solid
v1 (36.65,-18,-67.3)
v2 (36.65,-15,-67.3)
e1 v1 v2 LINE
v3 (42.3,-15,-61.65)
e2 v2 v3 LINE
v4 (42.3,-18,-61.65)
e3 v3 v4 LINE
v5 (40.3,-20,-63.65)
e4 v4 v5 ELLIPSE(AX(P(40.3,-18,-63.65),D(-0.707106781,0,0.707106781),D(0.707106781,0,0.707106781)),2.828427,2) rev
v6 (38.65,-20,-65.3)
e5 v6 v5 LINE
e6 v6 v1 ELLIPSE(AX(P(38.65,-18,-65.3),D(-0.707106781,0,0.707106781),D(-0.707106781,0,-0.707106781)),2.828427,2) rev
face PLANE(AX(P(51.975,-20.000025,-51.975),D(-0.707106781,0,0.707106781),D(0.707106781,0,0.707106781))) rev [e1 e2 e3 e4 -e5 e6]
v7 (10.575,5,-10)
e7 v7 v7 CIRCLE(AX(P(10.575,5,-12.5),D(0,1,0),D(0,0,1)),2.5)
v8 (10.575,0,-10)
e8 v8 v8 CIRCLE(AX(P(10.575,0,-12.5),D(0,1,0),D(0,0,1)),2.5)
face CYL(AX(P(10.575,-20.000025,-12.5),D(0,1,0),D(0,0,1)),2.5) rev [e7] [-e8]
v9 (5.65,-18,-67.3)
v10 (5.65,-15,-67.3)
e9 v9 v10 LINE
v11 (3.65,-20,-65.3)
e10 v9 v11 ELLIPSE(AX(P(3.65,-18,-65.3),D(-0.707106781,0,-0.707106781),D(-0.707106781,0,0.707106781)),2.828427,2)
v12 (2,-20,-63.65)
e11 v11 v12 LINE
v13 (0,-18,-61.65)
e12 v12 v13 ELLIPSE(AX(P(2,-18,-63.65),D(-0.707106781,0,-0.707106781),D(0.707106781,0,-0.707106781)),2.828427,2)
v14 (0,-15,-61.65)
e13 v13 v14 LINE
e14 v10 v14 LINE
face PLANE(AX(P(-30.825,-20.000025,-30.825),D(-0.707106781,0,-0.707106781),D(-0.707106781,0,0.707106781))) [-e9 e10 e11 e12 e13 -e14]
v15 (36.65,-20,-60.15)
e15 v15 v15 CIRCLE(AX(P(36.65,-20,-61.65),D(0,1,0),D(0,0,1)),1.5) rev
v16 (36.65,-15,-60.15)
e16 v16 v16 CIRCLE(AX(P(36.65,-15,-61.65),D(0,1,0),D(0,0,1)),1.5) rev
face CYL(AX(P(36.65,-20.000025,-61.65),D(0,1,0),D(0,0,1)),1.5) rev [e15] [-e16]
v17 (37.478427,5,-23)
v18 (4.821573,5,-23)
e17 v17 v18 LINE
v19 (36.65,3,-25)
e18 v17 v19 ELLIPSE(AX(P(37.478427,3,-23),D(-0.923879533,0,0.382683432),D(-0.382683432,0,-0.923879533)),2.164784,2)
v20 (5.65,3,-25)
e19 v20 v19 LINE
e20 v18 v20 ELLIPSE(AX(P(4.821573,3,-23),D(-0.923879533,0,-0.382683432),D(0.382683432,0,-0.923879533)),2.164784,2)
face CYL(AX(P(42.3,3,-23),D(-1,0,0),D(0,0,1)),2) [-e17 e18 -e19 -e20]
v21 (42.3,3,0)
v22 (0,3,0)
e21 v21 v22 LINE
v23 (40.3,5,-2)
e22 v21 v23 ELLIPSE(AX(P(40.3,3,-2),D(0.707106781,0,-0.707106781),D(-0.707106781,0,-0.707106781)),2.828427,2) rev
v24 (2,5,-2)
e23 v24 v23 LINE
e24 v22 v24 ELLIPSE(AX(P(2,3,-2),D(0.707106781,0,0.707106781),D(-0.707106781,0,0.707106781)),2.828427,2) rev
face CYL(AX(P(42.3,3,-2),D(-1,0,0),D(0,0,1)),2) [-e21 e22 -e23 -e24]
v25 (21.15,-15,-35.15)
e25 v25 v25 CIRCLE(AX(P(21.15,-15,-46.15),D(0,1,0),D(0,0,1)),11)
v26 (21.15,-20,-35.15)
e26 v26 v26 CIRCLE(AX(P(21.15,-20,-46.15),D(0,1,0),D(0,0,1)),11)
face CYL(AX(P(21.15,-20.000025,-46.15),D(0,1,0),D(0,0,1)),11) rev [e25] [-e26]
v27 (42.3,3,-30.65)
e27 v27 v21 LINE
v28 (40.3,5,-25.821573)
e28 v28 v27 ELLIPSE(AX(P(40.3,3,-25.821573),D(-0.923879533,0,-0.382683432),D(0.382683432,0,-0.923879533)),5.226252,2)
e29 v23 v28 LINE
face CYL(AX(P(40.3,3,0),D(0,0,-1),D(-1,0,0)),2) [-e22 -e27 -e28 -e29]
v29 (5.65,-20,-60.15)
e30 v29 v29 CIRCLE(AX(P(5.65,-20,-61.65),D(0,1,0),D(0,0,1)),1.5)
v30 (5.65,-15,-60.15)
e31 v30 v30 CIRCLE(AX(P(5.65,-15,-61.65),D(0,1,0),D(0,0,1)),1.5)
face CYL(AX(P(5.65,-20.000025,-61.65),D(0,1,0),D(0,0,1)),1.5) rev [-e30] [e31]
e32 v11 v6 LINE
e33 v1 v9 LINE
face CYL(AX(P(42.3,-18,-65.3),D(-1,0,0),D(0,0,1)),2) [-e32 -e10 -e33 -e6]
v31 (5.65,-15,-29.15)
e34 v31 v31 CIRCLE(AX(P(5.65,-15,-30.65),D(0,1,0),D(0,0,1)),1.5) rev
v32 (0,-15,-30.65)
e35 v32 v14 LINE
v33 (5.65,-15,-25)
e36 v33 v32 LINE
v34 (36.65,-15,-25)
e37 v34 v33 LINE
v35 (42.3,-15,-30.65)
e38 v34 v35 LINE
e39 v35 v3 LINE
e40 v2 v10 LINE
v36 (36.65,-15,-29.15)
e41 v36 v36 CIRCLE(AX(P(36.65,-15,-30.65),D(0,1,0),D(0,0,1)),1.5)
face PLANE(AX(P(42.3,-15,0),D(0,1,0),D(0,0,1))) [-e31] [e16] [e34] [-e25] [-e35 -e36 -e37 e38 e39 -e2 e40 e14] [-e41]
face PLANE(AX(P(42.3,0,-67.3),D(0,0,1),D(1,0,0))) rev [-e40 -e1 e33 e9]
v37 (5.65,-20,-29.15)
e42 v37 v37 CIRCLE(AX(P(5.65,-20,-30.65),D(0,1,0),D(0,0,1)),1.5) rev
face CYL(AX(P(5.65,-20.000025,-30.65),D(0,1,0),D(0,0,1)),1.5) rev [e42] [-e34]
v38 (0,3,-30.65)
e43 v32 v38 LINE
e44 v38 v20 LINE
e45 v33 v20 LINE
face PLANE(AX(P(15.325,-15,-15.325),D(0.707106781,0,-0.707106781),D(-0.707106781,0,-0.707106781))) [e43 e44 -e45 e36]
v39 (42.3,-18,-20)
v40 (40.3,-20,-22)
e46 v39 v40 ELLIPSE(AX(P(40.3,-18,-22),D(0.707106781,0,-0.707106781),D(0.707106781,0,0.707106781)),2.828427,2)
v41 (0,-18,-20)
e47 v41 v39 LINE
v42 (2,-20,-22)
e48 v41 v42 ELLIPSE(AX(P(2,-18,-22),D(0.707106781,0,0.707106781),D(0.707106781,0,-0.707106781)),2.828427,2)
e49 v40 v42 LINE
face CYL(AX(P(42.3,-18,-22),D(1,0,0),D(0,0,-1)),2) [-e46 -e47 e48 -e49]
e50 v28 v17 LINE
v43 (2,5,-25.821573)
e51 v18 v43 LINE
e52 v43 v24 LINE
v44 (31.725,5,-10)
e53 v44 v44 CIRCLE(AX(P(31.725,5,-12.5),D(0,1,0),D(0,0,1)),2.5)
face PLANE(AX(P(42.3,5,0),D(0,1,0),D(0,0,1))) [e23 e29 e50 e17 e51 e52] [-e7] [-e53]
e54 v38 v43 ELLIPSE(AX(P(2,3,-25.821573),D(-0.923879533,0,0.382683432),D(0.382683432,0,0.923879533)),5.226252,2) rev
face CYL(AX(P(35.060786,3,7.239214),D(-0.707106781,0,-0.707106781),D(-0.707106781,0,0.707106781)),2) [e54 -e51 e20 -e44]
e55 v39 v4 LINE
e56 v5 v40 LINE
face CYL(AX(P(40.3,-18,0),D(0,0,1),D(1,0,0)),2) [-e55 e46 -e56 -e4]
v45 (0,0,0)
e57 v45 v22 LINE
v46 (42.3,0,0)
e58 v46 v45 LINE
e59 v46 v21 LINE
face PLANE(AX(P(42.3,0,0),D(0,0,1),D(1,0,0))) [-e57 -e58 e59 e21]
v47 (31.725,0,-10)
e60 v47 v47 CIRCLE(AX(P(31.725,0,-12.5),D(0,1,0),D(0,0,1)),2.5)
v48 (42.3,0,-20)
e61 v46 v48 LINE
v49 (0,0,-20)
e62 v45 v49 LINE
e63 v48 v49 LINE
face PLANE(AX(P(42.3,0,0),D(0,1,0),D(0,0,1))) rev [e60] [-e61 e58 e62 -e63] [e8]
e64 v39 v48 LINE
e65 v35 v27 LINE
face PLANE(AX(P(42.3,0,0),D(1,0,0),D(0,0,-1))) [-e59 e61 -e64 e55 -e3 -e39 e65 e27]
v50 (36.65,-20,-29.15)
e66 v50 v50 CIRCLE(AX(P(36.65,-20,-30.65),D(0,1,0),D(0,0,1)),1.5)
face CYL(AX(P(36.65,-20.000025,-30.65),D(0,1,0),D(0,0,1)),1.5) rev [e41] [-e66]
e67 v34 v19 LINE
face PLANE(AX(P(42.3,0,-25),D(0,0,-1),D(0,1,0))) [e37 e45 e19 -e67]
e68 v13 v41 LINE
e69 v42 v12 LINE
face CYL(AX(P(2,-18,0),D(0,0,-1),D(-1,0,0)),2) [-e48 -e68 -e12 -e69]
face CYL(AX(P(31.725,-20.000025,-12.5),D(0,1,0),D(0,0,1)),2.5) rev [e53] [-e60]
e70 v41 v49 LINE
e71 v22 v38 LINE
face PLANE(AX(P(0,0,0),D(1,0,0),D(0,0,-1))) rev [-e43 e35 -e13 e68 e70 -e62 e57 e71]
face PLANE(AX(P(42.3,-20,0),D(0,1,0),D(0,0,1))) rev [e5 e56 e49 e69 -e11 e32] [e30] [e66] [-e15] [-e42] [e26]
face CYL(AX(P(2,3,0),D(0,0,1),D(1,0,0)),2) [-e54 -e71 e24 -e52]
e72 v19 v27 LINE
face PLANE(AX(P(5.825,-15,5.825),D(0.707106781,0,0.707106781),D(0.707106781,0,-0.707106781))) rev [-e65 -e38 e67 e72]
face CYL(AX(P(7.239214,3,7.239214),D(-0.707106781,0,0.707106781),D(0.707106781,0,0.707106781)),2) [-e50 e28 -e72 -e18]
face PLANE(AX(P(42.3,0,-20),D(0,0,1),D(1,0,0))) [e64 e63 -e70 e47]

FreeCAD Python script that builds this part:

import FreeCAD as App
import Part
import Sketcher
from FreeCAD import Vector


def edges_at(feature, points):
    """Names of the edges that pass closest to the given points."""
    edges = feature.Shape.Edges
    near = lambda p: min(range(len(edges)), key=lambda i: edges[i].distToShape(Part.Vertex(*p))[0])
    return sorted({f"Edge{near(p) + 1}" for p in points})

doc = App.newDocument("Part")
params = doc.addObject("Spreadsheet::Sheet", "Params")
for row, (alias, value) in enumerate([
    ("sketch1_width", "5 mm"),
    ("sketch1_width2", "20 mm"),
    ("sketch1_height", "25 mm"),
    ("sketch1_height2", "47.3 mm"),
    ("pad1_length", "42.3 mm"),
    ("sketch2_diameter", "22 mm"),
    ("sketch2_diameter2", "3 mm"),
    ("sketch2_diameter3", "5 mm"),
    ("sketch2_width", "5.65 mm"),
    ("sketch3_width", "5.65 mm"),
    ("pad2_length", "20 mm"),
    ("fillet_radius", "2 mm"),
], start=1):
    params.set(f"A{row}", alias)
    params.set(f"B{row}", "=" + value)
    params.setAlias(f"B{row}", alias)

body = doc.addObject("PartDesign::Body", "Body")

sketch1 = doc.addObject("Sketcher::SketchObject", "Sketch")
body.addObject(sketch1)
sketch1.AttachmentSupport = (doc.YZ_Plane, [""])
sketch1.MapMode = "FlatFace"
sketch1.addGeometry(Part.LineSegment(Vector(5, 0, 0), Vector(0, 0, 0)), False)
sketch1.addGeometry(Part.LineSegment(Vector(0, 0, 0), Vector(0, -20, 0)), False)
sketch1.addGeometry(Part.LineSegment(Vector(0, -20, 0), Vector(-20, -20, 0)), False)
sketch1.addGeometry(Part.LineSegment(Vector(-20, -20, 0), Vector(-20, -67, 0)), False)
sketch1.addGeometry(Part.LineSegment(Vector(-20, -67, 0), Vector(-15, -67, 0)), False)
sketch1.addGeometry(Part.LineSegment(Vector(-15, -67, 0), Vector(-15, -25, 0)), False)
sketch1.addGeometry(Part.LineSegment(Vector(-15, -25, 0), Vector(5, -25, 0)), False)
sketch1.addGeometry(Part.LineSegment(Vector(5, -25, 0), Vector(5, 0, 0)), False)
sketch1.addConstraint(Sketcher.Constraint("Coincident", 0, 2, 1, 1))
sketch1.addConstraint(Sketcher.Constraint("Coincident", 1, 2, 2, 1))
sketch1.addConstraint(Sketcher.Constraint("Coincident", 2, 2, 3, 1))
sketch1.addConstraint(Sketcher.Constraint("Coincident", 3, 2, 4, 1))
sketch1.addConstraint(Sketcher.Constraint("Coincident", 4, 2, 5, 1))
sketch1.addConstraint(Sketcher.Constraint("Coincident", 5, 2, 6, 1))
sketch1.addConstraint(Sketcher.Constraint("Coincident", 6, 2, 7, 1))
sketch1.addConstraint(Sketcher.Constraint("Coincident", 7, 2, 0, 1))
sketch1.addConstraint(Sketcher.Constraint("Horizontal", 0))
sketch1.addConstraint(Sketcher.Constraint("Vertical", 1))
sketch1.addConstraint(Sketcher.Constraint("Horizontal", 2))
sketch1.addConstraint(Sketcher.Constraint("Vertical", 3))
sketch1.addConstraint(Sketcher.Constraint("Horizontal", 4))
sketch1.addConstraint(Sketcher.Constraint("Vertical", 5))
sketch1.addConstraint(Sketcher.Constraint("Horizontal", 6))
sketch1.addConstraint(Sketcher.Constraint("Vertical", 7))
sketch1.addConstraint(Sketcher.Constraint("Coincident", 0, 2, -1, 1))
sketch1.addConstraint(Sketcher.Constraint("Equal", 0, 4))
sketch1.addConstraint(Sketcher.Constraint("Equal", 6, 1))
sketch1.addConstraint(Sketcher.Constraint("DistanceX", 0, 2, 0, 1, 5.0))
sketch1.addConstraint(Sketcher.Constraint("DistanceX", 2, 2, 2, 1, 20.0))
sketch1.addConstraint(Sketcher.Constraint("DistanceY", 7, 1, 7, 2, 25.0))
sketch1.addConstraint(Sketcher.Constraint("DistanceY", 3, 2, 3, 1, 47.3))
sketch1.setExpression("Constraints[19]", "Params.sketch1_width")
sketch1.setExpression("Constraints[20]", "Params.sketch1_width2")
sketch1.setExpression("Constraints[21]", "Params.sketch1_height")
sketch1.setExpression("Constraints[22]", "Params.sketch1_height2")
pad1 = doc.addObject("PartDesign::Pad", "Pad")
body.addObject(pad1)
pad1.Profile = sketch1
pad1.setExpression("Length", "Params.pad1_length")

sketch2 = doc.addObject("Sketcher::SketchObject", "Sketch001")
body.addObject(sketch2)
sketch2.AttachmentSupport = (doc.XZ_Plane, [""])
sketch2.MapMode = "FlatFace"
sketch2.AttachmentOffset = App.Placement(Vector(0, 0, -5), App.Rotation())
sketch2.addGeometry(Part.LineSegment(Vector(0, -61.6, 0), Vector(5.7, -67.3, 0)), False)
sketch2.addGeometry(Part.LineSegment(Vector(5.7, -67.3, 0), Vector(0, -67.3, 0)), False)
sketch2.addGeometry(Part.LineSegment(Vector(0, -67.3, 0), Vector(0, -61.6, 0)), False)
sketch2.addGeometry(Part.LineSegment(Vector(42.3, -67.3, 0), Vector(36.6, -67.3, 0)), False)
sketch2.addGeometry(Part.LineSegment(Vector(36.6, -67.3, 0), Vector(42.3, -61.6, 0)), False)
sketch2.addGeometry(Part.LineSegment(Vector(42.3, -61.6, 0), Vector(42.3, -67.3, 0)), False)
sketch2.addGeometry(Part.Circle(Vector(21.1, -46.1, 0), Vector(0, 0, 1), 11), False)
sketch2.addGeometry(Part.Circle(Vector(5.7, -61.6, 0), Vector(0, 0, 1), 1.5), False)
sketch2.addGeometry(Part.Circle(Vector(36.6, -61.6, 0), Vector(0, 0, 1), 1.5), False)
sketch2.addGeometry(Part.Circle(Vector(5.7, -30.6, 0), Vector(0, 0, 1), 1.5), False)
sketch2.addGeometry(Part.Circle(Vector(36.6, -30.6, 0), Vector(0, 0, 1), 1.5), False)
sketch2.addGeometry(Part.Circle(Vector(10.6, -12.5, 0), Vector(0, 0, 1), 2.5), False)
sketch2.addGeometry(Part.Circle(Vector(31.7, -12.5, 0), Vector(0, 0, 1), 2.5), False)
sketch2.addConstraint(Sketcher.Constraint("Coincident", 0, 2, 1, 1))
sketch2.addConstraint(Sketcher.Constraint("Coincident", 1, 2, 2, 1))
sketch2.addConstraint(Sketcher.Constraint("Coincident", 2, 2, 0, 1))
sketch2.addConstraint(Sketcher.Constraint("Coincident", 3, 2, 4, 1))
sketch2.addConstraint(Sketcher.Constraint("Coincident", 4, 2, 5, 1))
sketch2.addConstraint(Sketcher.Constraint("Coincident", 5, 2, 3, 1))
sketch2.addConstraint(Sketcher.Constraint("Horizontal", 1))
sketch2.addConstraint(Sketcher.Constraint("Vertical", 2))
sketch2.addConstraint(Sketcher.Constraint("Horizontal", 3))
sketch2.addConstraint(Sketcher.Constraint("Vertical", 5))
sketch2.addConstraint(Sketcher.Constraint("Equal", 7, 8))
sketch2.addConstraint(Sketcher.Constraint("Equal", 8, 9))
sketch2.addConstraint(Sketcher.Constraint("Equal", 9, 10))
sketch2.addConstraint(Sketcher.Constraint("Equal", 11, 12))
sketch2.addConstraint(Sketcher.Constraint("PointOnObject", 1, 2, -2))
sketch2.addConstraint(Sketcher.Constraint("Perpendicular", 0, 4))
sketch2.addConstraint(Sketcher.Constraint("Horizontal", 7, 3, 8, 3))
sketch2.addConstraint(Sketcher.Constraint("Horizontal", 9, 3, 10, 3))
sketch2.addConstraint(Sketcher.Constraint("Horizontal", 11, 3, 12, 3))
sketch2.addConstraint(Sketcher.Constraint("Horizontal", 8, 3, 2, 2))
sketch2.addConstraint(Sketcher.Constraint("Horizontal", 1, 2, 3, 2))
sketch2.addConstraint(Sketcher.Constraint("Horizontal", 2, 2, 4, 2))
sketch2.addConstraint(Sketcher.Constraint("Vertical", 7, 3, 9, 3))
sketch2.addConstraint(Sketcher.Constraint("Vertical", 8, 3, 10, 3))
sketch2.addConstraint(Sketcher.Constraint("Vertical", 9, 3, 0, 2))
sketch2.addConstraint(Sketcher.Constraint("Vertical", 10, 3, 3, 2))
sketch2.addConstraint(Sketcher.Constraint("Equal", 1, 3))
sketch2.addConstraint(Sketcher.Constraint("Diameter", 6, 22.0))
sketch2.addConstraint(Sketcher.Constraint("Diameter", 7, 3.0))
sketch2.addConstraint(Sketcher.Constraint("Diameter", 11, 5.0))
sketch2.addConstraint(Sketcher.Constraint("DistanceX", 7, 3, 8, 3, 31.0))
sketch2.addConstraint(Sketcher.Constraint("DistanceY", 7, 3, 9, 3, 31.0))
sketch2.addConstraint(Sketcher.Constraint("DistanceX", 1, 2, 1, 1, 5.65))
sketch2.addConstraint(Sketcher.Constraint("DistanceY", 11, 3, -1, 1, 12.5))
sketch2.addConstraint(Sketcher.Constraint("DistanceY", 0, 2, -1, 1, 67.3))
sketch2.addConstraint(Sketcher.Constraint("DistanceX", 7, 3, 6, 3, 15.5))
sketch2.addConstraint(Sketcher.Constraint("DistanceY", 7, 3, 6, 3, 15.5))
sketch2.addConstraint(Sketcher.Constraint("DistanceX", 11, 3, 12, 3, 21.15))
sketch2.addConstraint(Sketcher.Constraint("DistanceX", -1, 1, 11, 3, 10.575))
sketch2.setExpression("Constraints[27]", "Params.sketch2_diameter")
sketch2.setExpression("Constraints[28]", "Params.sketch2_diameter2")
sketch2.setExpression("Constraints[29]", "Params.sketch2_diameter3")
sketch2.setExpression("Constraints[32]", "Params.sketch2_width")
pocket1 = doc.addObject("PartDesign::Pocket", "Pocket")
body.addObject(pocket1)
pocket1.Profile = sketch2
pocket1.Type = "ThroughAll"
pocket1.Reversed = True

sketch3 = doc.addObject("Sketcher::SketchObject", "Sketch002")
body.addObject(sketch3)
sketch3.AttachmentSupport = (doc.XZ_Plane, [""])
sketch3.MapMode = "FlatFace"
sketch3.AttachmentOffset = App.Placement(Vector(0, 0, -5), App.Rotation())
sketch3.addGeometry(Part.LineSegment(Vector(6, -25, 0), Vector(0, -31, 0)), False)
sketch3.addGeometry(Part.LineSegment(Vector(0, -31, 0), Vector(0, -25, 0)), False)
sketch3.addGeometry(Part.LineSegment(Vector(0, -25, 0), Vector(6, -25, 0)), False)
sketch3.addGeometry(Part.LineSegment(Vector(42, -25, 0), Vector(42, -31, 0)), False)
sketch3.addGeometry(Part.LineSegment(Vector(42, -31, 0), Vector(37, -25, 0)), False)
sketch3.addGeometry(Part.LineSegment(Vector(37, -25, 0), Vector(42, -25, 0)), False)
sketch3.addConstraint(Sketcher.Constraint("Coincident", 0, 2, 1, 1))
sketch3.addConstraint(Sketcher.Constraint("Coincident", 1, 2, 2, 1))
sketch3.addConstraint(Sketcher.Constraint("Coincident", 2, 2, 0, 1))
sketch3.addConstraint(Sketcher.Constraint("Coincident", 3, 2, 4, 1))
sketch3.addConstraint(Sketcher.Constraint("Coincident", 4, 2, 5, 1))
sketch3.addConstraint(Sketcher.Constraint("Coincident", 5, 2, 3, 1))
sketch3.addConstraint(Sketcher.Constraint("Vertical", 1))
sketch3.addConstraint(Sketcher.Constraint("Horizontal", 2))
sketch3.addConstraint(Sketcher.Constraint("Vertical", 3))
sketch3.addConstraint(Sketcher.Constraint("Horizontal", 5))
sketch3.addConstraint(Sketcher.Constraint("PointOnObject", 0, 2, -2))
sketch3.addConstraint(Sketcher.Constraint("Perpendicular", 0, 4))
sketch3.addConstraint(Sketcher.Constraint("Horizontal", 0, 2, 3, 2))
sketch3.addConstraint(Sketcher.Constraint("Horizontal", 2, 2, 4, 2))
sketch3.addConstraint(Sketcher.Constraint("Equal", 2, 5))
sketch3.addConstraint(Sketcher.Constraint("DistanceY", 1, 2, -1, 1, 25.0))
sketch3.addConstraint(Sketcher.Constraint("DistanceX", 2, 2, 4, 2, 31.0))
sketch3.addConstraint(Sketcher.Constraint("DistanceX", 2, 1, 2, 2, 5.65))
sketch3.setExpression("Constraints[17]", "Params.sketch3_width")
pad2 = doc.addObject("PartDesign::Pad", "Pad001")
body.addObject(pad2)
pad2.Profile = sketch3
pad2.setExpression("Length", "Params.pad2_length")
doc.recompute()

fillet = doc.addObject("PartDesign::Fillet", "Fillet")
body.addObject(fillet)
fillet.Base = (pad2, edges_at(pad2, [
    (21.15, -20, -67.3),
    (42.3, -20, -40.825),
    (0, -20, -40.825),
    (21.15, -20, -20),
    (2.825, 5, -27.825),
    (21.15, 5, -25),
    (39.475, 5, -27.825),
    (21.15, 5, 0),
    (0, 5, -15.325),
    (42.3, 5, -15.325),
]))
fillet.setExpression("Radius", "Params.fillet_radius")

doc.recompute()
